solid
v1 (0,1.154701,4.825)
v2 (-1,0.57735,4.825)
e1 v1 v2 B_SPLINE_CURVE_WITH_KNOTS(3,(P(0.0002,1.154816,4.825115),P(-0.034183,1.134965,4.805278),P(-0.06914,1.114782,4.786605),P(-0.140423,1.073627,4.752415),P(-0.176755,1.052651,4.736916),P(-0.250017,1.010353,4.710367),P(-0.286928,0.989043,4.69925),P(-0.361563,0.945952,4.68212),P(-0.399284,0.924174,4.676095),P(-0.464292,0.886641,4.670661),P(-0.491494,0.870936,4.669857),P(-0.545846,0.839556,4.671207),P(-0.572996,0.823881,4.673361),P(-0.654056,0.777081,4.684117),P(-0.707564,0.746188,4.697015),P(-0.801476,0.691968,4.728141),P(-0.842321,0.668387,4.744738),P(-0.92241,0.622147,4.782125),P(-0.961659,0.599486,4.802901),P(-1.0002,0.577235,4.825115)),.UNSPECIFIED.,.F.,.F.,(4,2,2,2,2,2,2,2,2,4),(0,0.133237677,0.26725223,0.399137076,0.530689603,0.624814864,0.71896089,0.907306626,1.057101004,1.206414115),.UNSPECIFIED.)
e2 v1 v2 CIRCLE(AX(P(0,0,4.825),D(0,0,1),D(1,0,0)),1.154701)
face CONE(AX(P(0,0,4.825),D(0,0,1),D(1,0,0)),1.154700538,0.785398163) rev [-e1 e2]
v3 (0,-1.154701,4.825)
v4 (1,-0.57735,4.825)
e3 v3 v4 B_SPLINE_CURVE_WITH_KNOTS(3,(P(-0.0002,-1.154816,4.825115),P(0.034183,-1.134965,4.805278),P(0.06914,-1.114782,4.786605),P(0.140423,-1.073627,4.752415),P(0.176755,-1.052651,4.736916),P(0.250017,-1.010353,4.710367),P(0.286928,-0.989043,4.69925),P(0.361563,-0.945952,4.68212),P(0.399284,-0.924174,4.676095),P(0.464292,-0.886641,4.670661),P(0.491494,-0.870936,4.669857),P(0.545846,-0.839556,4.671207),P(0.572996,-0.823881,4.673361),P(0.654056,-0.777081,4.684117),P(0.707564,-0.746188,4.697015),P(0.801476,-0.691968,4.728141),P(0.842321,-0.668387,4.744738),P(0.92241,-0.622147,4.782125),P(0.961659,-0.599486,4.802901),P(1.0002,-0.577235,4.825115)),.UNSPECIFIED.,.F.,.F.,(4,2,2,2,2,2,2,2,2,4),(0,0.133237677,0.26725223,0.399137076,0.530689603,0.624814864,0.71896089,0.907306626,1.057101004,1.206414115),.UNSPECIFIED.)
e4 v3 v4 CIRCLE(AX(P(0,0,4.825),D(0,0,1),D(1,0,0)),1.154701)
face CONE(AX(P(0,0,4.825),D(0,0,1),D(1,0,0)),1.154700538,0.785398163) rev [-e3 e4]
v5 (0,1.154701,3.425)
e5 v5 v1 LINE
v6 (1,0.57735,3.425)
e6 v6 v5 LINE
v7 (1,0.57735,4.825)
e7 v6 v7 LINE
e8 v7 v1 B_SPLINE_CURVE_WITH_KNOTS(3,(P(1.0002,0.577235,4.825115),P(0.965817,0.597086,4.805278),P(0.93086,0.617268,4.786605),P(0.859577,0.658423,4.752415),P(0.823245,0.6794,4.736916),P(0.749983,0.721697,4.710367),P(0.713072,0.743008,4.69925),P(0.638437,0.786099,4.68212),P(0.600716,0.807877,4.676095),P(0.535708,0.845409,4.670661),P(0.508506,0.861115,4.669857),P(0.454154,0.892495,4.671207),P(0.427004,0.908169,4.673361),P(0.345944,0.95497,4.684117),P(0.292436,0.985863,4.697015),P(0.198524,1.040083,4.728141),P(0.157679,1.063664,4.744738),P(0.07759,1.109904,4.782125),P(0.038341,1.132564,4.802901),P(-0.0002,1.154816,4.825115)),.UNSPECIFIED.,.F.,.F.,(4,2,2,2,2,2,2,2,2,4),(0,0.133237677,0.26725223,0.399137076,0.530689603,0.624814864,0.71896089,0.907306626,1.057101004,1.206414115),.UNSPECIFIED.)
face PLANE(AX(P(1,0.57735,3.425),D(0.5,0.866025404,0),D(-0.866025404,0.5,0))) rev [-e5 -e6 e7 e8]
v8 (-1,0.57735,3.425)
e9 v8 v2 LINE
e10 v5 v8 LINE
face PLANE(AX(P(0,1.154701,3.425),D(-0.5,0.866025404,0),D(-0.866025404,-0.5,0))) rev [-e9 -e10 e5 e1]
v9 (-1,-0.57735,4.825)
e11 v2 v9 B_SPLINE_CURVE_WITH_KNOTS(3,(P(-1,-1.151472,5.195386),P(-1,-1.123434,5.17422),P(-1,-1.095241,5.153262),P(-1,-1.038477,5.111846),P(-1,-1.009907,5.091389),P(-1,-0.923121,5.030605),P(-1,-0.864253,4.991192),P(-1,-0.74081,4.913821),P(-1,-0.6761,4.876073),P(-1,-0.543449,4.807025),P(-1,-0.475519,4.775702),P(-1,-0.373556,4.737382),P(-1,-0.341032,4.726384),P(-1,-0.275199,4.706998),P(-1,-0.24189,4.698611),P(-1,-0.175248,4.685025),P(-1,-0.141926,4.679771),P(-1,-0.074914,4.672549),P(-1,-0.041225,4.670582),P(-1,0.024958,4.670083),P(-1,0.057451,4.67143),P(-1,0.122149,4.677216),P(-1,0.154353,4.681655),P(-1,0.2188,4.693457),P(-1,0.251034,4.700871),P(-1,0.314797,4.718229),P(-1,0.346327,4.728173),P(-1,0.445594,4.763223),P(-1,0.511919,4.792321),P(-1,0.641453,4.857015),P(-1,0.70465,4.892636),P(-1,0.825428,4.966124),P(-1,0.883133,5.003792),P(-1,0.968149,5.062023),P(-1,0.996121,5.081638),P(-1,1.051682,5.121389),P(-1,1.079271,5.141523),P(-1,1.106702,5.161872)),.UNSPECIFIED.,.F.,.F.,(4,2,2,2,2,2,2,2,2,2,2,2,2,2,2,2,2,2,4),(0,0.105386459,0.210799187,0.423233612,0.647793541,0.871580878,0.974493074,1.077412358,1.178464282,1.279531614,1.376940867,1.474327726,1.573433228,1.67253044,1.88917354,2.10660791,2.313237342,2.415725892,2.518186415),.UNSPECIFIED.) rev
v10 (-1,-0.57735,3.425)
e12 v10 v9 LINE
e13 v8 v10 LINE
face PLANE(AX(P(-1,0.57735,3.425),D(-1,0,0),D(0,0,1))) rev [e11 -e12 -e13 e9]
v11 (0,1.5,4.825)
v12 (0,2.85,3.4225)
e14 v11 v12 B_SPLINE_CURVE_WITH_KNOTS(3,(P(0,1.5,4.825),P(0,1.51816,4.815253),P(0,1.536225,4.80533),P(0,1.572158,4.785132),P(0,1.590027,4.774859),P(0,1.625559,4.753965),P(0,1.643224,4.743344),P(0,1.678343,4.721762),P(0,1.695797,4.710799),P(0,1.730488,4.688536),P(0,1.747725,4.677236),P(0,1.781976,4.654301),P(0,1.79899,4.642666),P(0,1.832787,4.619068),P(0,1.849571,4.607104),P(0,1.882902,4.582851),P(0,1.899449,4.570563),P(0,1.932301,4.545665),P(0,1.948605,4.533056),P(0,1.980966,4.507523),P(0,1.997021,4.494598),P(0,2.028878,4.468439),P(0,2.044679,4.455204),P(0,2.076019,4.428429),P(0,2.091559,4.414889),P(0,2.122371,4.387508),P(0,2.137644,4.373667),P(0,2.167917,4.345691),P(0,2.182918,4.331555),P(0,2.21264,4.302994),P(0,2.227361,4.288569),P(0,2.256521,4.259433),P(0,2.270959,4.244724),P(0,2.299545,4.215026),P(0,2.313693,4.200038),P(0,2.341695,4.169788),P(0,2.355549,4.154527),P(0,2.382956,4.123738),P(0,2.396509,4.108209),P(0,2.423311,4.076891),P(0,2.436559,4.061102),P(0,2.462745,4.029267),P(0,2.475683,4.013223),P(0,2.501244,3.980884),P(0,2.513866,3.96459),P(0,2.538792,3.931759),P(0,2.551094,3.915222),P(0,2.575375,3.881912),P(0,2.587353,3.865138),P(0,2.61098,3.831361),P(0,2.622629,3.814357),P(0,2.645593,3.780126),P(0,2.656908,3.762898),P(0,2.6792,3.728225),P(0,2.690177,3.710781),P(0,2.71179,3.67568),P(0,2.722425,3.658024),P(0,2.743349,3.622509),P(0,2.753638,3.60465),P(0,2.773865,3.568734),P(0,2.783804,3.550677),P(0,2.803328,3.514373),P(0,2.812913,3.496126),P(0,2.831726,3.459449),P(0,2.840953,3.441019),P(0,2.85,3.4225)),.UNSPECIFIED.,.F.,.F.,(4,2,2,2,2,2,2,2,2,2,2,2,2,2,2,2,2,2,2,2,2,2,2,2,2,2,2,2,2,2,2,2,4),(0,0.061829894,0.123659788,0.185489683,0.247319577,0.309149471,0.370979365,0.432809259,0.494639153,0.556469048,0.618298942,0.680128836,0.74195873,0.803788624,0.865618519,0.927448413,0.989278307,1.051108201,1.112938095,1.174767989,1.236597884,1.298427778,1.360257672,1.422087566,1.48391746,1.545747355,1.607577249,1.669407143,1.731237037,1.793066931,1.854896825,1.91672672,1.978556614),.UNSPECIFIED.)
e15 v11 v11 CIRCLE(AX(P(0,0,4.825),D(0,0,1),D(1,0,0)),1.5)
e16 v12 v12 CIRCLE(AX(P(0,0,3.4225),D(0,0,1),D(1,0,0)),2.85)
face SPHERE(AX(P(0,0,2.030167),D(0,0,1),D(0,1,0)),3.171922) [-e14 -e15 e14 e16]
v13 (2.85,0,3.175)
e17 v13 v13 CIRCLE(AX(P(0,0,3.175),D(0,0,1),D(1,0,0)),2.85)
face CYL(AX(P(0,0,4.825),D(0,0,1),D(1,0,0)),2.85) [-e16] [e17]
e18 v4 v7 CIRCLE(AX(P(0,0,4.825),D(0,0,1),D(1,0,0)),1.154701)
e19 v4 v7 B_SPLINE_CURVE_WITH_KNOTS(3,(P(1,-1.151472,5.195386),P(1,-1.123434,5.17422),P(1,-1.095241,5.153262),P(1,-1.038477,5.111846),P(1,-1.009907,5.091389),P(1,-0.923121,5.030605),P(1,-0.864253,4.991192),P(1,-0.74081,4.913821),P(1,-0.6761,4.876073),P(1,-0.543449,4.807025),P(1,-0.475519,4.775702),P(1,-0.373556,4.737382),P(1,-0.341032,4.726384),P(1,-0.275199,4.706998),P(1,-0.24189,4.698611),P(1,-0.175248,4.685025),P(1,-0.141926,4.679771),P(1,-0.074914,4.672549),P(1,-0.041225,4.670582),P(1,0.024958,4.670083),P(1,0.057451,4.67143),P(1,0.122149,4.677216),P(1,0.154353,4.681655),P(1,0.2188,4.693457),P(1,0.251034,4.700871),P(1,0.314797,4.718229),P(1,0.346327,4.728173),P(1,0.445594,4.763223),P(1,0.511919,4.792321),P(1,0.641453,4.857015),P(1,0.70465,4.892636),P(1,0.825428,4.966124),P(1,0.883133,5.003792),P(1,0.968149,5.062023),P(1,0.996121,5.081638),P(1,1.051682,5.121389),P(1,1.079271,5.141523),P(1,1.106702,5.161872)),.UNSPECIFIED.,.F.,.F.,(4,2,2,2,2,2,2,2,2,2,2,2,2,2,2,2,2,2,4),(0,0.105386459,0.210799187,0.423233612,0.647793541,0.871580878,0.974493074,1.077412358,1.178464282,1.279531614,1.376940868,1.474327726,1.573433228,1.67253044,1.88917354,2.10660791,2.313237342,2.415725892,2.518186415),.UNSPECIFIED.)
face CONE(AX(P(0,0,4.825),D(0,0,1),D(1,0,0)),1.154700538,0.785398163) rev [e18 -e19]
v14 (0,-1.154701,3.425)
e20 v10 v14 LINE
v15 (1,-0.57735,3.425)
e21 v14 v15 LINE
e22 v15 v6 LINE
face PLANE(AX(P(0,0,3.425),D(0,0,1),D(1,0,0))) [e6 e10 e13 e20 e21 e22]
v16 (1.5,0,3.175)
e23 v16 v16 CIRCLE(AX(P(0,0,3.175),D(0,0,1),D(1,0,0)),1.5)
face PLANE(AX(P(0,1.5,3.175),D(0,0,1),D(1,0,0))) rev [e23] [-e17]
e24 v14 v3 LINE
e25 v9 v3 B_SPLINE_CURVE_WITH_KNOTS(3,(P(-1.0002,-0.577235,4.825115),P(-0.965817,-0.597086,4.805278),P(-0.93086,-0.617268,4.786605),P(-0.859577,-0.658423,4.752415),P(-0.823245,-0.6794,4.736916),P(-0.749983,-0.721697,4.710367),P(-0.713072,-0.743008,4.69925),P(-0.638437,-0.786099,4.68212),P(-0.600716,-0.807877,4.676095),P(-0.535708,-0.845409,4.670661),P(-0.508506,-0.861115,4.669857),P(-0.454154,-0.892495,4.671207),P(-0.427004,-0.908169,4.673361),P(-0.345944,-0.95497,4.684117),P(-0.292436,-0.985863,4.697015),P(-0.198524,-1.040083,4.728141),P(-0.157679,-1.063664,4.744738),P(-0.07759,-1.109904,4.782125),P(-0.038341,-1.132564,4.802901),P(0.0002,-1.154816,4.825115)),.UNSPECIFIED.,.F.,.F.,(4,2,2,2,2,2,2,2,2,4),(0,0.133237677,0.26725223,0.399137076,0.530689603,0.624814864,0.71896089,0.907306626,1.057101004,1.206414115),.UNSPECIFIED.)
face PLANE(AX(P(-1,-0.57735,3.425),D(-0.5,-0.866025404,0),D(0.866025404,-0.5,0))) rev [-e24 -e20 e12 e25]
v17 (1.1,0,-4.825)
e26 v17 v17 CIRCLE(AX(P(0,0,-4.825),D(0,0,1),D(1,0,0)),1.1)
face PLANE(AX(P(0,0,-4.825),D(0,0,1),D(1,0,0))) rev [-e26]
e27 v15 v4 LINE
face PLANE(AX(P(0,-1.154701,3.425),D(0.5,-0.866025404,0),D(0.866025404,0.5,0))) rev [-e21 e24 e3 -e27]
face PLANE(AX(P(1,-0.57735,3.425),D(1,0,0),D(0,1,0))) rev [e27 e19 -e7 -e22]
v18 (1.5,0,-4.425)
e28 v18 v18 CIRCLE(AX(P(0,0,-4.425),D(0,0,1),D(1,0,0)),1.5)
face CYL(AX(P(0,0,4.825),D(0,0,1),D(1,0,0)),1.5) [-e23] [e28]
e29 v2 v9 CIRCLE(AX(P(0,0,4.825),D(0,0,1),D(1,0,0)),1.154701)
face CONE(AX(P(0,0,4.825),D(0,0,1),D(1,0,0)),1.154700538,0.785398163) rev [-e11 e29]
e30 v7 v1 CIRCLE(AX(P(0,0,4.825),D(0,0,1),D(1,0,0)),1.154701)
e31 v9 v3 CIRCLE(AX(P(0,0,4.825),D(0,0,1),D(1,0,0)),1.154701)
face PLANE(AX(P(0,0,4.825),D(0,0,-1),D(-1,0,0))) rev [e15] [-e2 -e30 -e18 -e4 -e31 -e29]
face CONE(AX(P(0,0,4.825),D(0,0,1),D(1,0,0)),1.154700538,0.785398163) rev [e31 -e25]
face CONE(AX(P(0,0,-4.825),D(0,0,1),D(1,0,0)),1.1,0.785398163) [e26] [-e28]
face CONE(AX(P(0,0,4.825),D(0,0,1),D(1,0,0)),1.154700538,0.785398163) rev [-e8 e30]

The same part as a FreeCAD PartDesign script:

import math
import FreeCAD as App
import Part
import Sketcher
Q = App.Units.Quantity


def add_polygon(sketch, points):
    """Adds a closed chain of lines whose ends are joined by coincident constraints."""
    first, n = sketch.GeometryCount, len(points)
    for a, b in zip(points, points[1:] + points[:1]):
        sketch.addGeometry(Part.LineSegment(App.Vector(*a, 0), App.Vector(*b, 0)), False)
    for i in range(n):
        sketch.addConstraint(Sketcher.Constraint("Coincident", first + i, 2, first + (i + 1) % n, 1))

doc = App.newDocument("Part")
body = doc.addObject("PartDesign::Body", "Body")

# Sketch on YZ plane
sketch1 = body.newObject("Sketcher::SketchObject", "Sketch")
sketch1.AttachmentSupport = (doc.getObject("YZ_Plane"), [""])
sketch1.MapMode = "FlatFace"
sketch1.addGeometry([
    Part.LineSegment(App.Vector(0, 4.83, 0), App.Vector(0, -4.83, 0)),  # 0
    Part.LineSegment(App.Vector(0, -4.83, 0), App.Vector(1.1, -4.83, 0)),  # 1
    Part.LineSegment(App.Vector(1.1, -4.83, 0), App.Vector(1.5, -4.42, 0)),  # 2
    Part.LineSegment(App.Vector(1.5, -4.42, 0), App.Vector(1.5, 3.17, 0)),  # 3
    Part.LineSegment(App.Vector(1.5, 3.17, 0), App.Vector(2.85, 3.17, 0)),  # 4
    Part.LineSegment(App.Vector(2.85, 3.17, 0), App.Vector(2.85, 3.42, 0)),  # 5
    Part.ArcOfCircle(Part.Circle(App.Vector(0, 2.03, 0), App.Vector(0, 0, 1), 3.17), math.radians(26), math.radians(62)),  # 6
    Part.LineSegment(App.Vector(1.5, 4.83, 0), App.Vector(0, 4.83, 0)),  # 7
], False)
sketch1.addConstraint([
    Sketcher.Constraint("Coincident", 0, 2, 1, 1),
    Sketcher.Constraint("Coincident", 1, 2, 2, 1),
    Sketcher.Constraint("Coincident", 2, 2, 3, 1),
    Sketcher.Constraint("Coincident", 3, 2, 4, 1),
    Sketcher.Constraint("Coincident", 4, 2, 5, 1),
    Sketcher.Constraint("Coincident", 5, 2, 6, 1),
    Sketcher.Constraint("Coincident", 6, 2, 7, 1),
    Sketcher.Constraint("Coincident", 7, 2, 0, 1),
    Sketcher.Constraint("Vertical", 0),
    Sketcher.Constraint("Horizontal", 1),
    Sketcher.Constraint("Vertical", 3),
    Sketcher.Constraint("Horizontal", 4),
    Sketcher.Constraint("Vertical", 5),
    Sketcher.Constraint("Horizontal", 7),
    Sketcher.Constraint("Symmetric", 0, 2, 7, 2, -1, 1),
    Sketcher.Constraint("PointOnObject", 6, 3, -2),
    Sketcher.Constraint("Vertical", 3, 2, 6, 2),
    Sketcher.Constraint("Angle", 2, Q("45 deg")),
    Sketcher.Constraint("DistanceX", 1, 1, 1, 2, Q("1.1 mm")),
    Sketcher.Constraint("DistanceX", 7, 2, 7, 1, Q("1.5 mm")),
    Sketcher.Constraint("DistanceY", 3, 1, 3, 2, Q("7.6 mm")),
    Sketcher.Constraint("DistanceX", 4, 1, 4, 2, Q("1.35 mm")),
    Sketcher.Constraint("DistanceY", 0, 2, 0, 1, Q("9.65 mm")),
    Sketcher.Constraint("DistanceY", 5, 1, 5, 2, Q("0.2475 mm")),
])
revolution = body.newObject("PartDesign::Revolution", "Revolution")
revolution.Profile = sketch1
revolution.ReferenceAxis = (sketch1, ["V_Axis"])
revolution.Angle = 360

# Sketch on XY plane
sketch2 = body.newObject("Sketcher::SketchObject", "Sketch001")
sketch2.AttachmentSupport = (doc.getObject("XY_Plane"), [""])
sketch2.MapMode = "FlatFace"
sketch2.AttachmentOffset = App.Placement(App.Vector(0, 0, 4.825), App.Rotation())
add_polygon(sketch2, [(0, 1.2), (-1, 0.6), (-1, -0.6), (0, -1.2), (1, -0.6), (1, 0.6)])  # lines 0-5
sketch2.addConstraint([
    Sketcher.Constraint("Vertical", 1),
    Sketcher.Constraint("Vertical", 4),
    Sketcher.Constraint("Symmetric", 0, 2, 3, 2, -1, 1),
    Sketcher.Constraint("Symmetric", 2, 2, 5, 2, -1, 1),
    Sketcher.Constraint("PointOnObject", 2, 2, -2),
    Sketcher.Constraint("Parallel", 2, 5),
    Sketcher.Constraint("Horizontal", 1, 2, 3, 2),
    Sketcher.Constraint("Angle", 0, Q("-150 deg")),
    Sketcher.Constraint("DistanceX", 0, 2, -1, 1, Q("1 mm")),
    Sketcher.Constraint("DistanceY", 1, 2, 1, 1, Q("1.154701 mm")),
])
pocket1 = body.newObject("PartDesign::Pocket", "Pocket")
pocket1.Profile = sketch2
pocket1.Length = 1.4

# Sketch on YZ plane
sketch3 = body.newObject("Sketcher::SketchObject", "Sketch002")
sketch3.AttachmentSupport = (doc.getObject("YZ_Plane"), [""])
sketch3.MapMode = "FlatFace"
add_polygon(sketch3, [(0, 4.8), (-1.2, 4.8), (0, 3.7)])  # lines 0-2
sketch3.addConstraint([
    Sketcher.Constraint("Horizontal", 0),
    Sketcher.Constraint("Vertical", 2),
    Sketcher.Constraint("PointOnObject", 1, 2, -2),
    Sketcher.Constraint("Equal", 0, 2),
    Sketcher.Constraint("DistanceX", 0, 2, 0, 1, Q("1.154701 mm")),
    Sketcher.Constraint("DistanceY", -1, 1, 0, 2, Q("4.825 mm")),
])
groove = body.newObject("PartDesign::Groove", "Groove")
groove.Profile = sketch3
groove.ReferenceAxis = (sketch3, ["V_Axis"])
groove.Angle = 360

doc.recompute()
